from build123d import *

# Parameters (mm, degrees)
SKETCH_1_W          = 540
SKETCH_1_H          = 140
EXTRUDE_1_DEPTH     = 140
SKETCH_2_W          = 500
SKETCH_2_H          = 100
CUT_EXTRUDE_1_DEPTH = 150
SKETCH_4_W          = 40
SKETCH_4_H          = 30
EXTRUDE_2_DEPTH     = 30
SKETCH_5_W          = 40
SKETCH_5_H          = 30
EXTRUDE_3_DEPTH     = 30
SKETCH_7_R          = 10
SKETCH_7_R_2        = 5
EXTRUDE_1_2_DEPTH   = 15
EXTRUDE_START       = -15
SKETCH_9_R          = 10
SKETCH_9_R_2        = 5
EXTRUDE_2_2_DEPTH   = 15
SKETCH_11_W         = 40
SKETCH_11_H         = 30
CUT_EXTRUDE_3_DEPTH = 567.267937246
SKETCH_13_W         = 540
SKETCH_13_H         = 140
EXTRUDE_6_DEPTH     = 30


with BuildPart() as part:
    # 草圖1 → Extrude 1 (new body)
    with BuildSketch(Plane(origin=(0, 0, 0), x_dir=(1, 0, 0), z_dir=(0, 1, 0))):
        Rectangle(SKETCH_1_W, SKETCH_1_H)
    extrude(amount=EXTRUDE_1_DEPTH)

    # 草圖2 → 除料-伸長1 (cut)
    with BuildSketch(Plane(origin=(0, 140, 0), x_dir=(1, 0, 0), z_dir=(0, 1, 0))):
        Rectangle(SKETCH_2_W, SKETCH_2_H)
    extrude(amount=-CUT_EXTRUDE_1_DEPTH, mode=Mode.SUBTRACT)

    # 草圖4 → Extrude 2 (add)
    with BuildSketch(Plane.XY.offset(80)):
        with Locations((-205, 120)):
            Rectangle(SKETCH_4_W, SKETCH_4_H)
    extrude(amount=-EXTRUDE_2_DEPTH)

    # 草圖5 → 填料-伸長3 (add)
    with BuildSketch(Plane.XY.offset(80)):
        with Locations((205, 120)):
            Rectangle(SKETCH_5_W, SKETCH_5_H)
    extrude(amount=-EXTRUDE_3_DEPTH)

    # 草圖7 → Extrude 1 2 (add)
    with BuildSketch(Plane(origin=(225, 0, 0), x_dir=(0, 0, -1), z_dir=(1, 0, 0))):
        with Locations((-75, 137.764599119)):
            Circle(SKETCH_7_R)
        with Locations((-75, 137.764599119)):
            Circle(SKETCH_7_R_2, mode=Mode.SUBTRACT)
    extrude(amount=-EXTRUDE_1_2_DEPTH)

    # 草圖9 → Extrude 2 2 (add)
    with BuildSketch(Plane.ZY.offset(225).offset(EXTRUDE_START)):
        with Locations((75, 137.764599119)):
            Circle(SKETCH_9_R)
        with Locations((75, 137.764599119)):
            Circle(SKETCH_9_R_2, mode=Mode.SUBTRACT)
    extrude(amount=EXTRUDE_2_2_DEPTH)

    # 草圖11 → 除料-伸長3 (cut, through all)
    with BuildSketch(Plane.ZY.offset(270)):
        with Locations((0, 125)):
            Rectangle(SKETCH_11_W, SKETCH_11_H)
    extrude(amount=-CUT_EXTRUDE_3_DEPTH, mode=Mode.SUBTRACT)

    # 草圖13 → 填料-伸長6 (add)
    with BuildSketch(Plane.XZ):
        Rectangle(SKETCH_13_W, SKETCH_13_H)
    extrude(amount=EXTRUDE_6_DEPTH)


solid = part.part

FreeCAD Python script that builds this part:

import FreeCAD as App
import Part
import Sketcher

V = App.Vector
Q = App.Units.Quantity

doc = App.newDocument("Part")
body = doc.addObject("PartDesign::Body", "Body")

# Sketch on XZ plane
sketch1 = body.newObject("Sketcher::SketchObject", "Sketch")
sketch1.AttachmentSupport = (doc.getObject("XZ_Plane"), [""])
sketch1.MapMode = "FlatFace"
sketch1.addGeometry([
    Part.LineSegment(V(-270, -70, 0), V(-270, 70, 0)),
    Part.LineSegment(V(-270, 70, 0), V(270, 70, 0)),
    Part.LineSegment(V(270, 70, 0), V(270, -70, 0)),
    Part.LineSegment(V(270, -70, 0), V(-270, -70, 0)),
], False)
sketch1.addConstraint([
    Sketcher.Constraint("Coincident", 0, 2, 1, 1),
    Sketcher.Constraint("Coincident", 1, 2, 2, 1),
    Sketcher.Constraint("Coincident", 2, 2, 3, 1),
    Sketcher.Constraint("Coincident", 3, 2, 0, 1),
    Sketcher.Constraint("Vertical", 0),
    Sketcher.Constraint("Horizontal", 1),
    Sketcher.Constraint("Vertical", 2),
    Sketcher.Constraint("Horizontal", 3),
    Sketcher.Constraint("Symmetric", 0, 2, 2, 2, -1, 1),
    Sketcher.Constraint("DistanceX", 1, 1, 1, 2, Q("540 mm")),
    Sketcher.Constraint("DistanceY", 0, 1, 0, 2, Q("140 mm")),
])
pad1 = body.newObject("PartDesign::Pad", "Pad")
pad1.Profile = sketch1
pad1.Length = 140
pad1.Reversed = True

# Sketch on XZ plane
sketch2 = body.newObject("Sketcher::SketchObject", "Sketch001")
sketch2.AttachmentSupport = (doc.getObject("XZ_Plane"), [""])
sketch2.MapMode = "FlatFace"
sketch2.AttachmentOffset = App.Placement(V(0, 0, -140), App.Rotation())
sketch2.addGeometry([
    Part.LineSegment(V(-250, -50, 0), V(-250, 50, 0)),
    Part.LineSegment(V(-250, 50, 0), V(250, 50, 0)),
    Part.LineSegment(V(250, 50, 0), V(250, -50, 0)),
    Part.LineSegment(V(250, -50, 0), V(-250, -50, 0)),
], False)
sketch2.addConstraint([
    Sketcher.Constraint("Coincident", 0, 2, 1, 1),
    Sketcher.Constraint("Coincident", 1, 2, 2, 1),
    Sketcher.Constraint("Coincident", 2, 2, 3, 1),
    Sketcher.Constraint("Coincident", 3, 2, 0, 1),
    Sketcher.Constraint("Vertical", 0),
    Sketcher.Constraint("Horizontal", 1),
    Sketcher.Constraint("Vertical", 2),
    Sketcher.Constraint("Horizontal", 3),
    Sketcher.Constraint("Symmetric", 0, 2, 2, 2, -1, 1),
    Sketcher.Constraint("DistanceX", 1, 1, 1, 2, Q("500 mm")),
    Sketcher.Constraint("DistanceY", 0, 1, 0, 2, Q("100 mm")),
])
pocket1 = body.newObject("PartDesign::Pocket", "Pocket")
pocket1.Profile = sketch2
pocket1.Length = 150
pocket1.Reversed = True

# Sketch on XY plane
sketch3 = body.newObject("Sketcher::SketchObject", "Sketch002")
sketch3.AttachmentSupport = (doc.getObject("XY_Plane"), [""])
sketch3.MapMode = "FlatFace"
sketch3.AttachmentOffset = App.Placement(V(0, 0, 80), App.Rotation())
sketch3.addGeometry([
    Part.LineSegment(V(-225, 135, 0), V(-225, 105, 0)),
    Part.LineSegment(V(-225, 105, 0), V(-185, 105, 0)),
    Part.LineSegment(V(-185, 105, 0), V(-185, 135, 0)),
    Part.LineSegment(V(-185, 135, 0), V(-225, 135, 0)),
], False)
sketch3.addConstraint([
    Sketcher.Constraint("Coincident", 0, 2, 1, 1),
    Sketcher.Constraint("Coincident", 1, 2, 2, 1),
    Sketcher.Constraint("Coincident", 2, 2, 3, 1),
    Sketcher.Constraint("Coincident", 3, 2, 0, 1),
    Sketcher.Constraint("Vertical", 0),
    Sketcher.Constraint("Horizontal", 1),
    Sketcher.Constraint("Vertical", 2),
    Sketcher.Constraint("Horizontal", 3),
    Sketcher.Constraint("DistanceX", 1, 1, 1, 2, Q("40 mm")),
    Sketcher.Constraint("DistanceY", 0, 2, 0, 1, Q("30 mm")),
    Sketcher.Constraint("DistanceX", 0, 2, -1, 1, Q("225 mm")),
    Sketcher.Constraint("DistanceY", -1, 1, 0, 2, Q("105 mm")),
])
pad2 = body.newObject("PartDesign::Pad", "Pad001")
pad2.Profile = sketch3
pad2.Length = 30
pad2.Reversed = True

# Sketch on XY plane
sketch4 = body.newObject("Sketcher::SketchObject", "Sketch003")
sketch4.AttachmentSupport = (doc.getObject("XY_Plane"), [""])
sketch4.MapMode = "FlatFace"
sketch4.AttachmentOffset = App.Placement(V(0, 0, 80), App.Rotation())
sketch4.addGeometry([
    Part.LineSegment(V(185, 135, 0), V(185, 105, 0)),
    Part.LineSegment(V(185, 105, 0), V(225, 105, 0)),
    Part.LineSegment(V(225, 105, 0), V(225, 135, 0)),
    Part.LineSegment(V(225, 135, 0), V(185, 135, 0)),
], False)
sketch4.addConstraint([
    Sketcher.Constraint("Coincident", 0, 2, 1, 1),
    Sketcher.Constraint("Coincident", 1, 2, 2, 1),
    Sketcher.Constraint("Coincident", 2, 2, 3, 1),
    Sketcher.Constraint("Coincident", 3, 2, 0, 1),
    Sketcher.Constraint("Vertical", 0),
    Sketcher.Constraint("Horizontal", 1),
    Sketcher.Constraint("Vertical", 2),
    Sketcher.Constraint("Horizontal", 3),
    Sketcher.Constraint("DistanceX", 1, 1, 1, 2, Q("40 mm")),
    Sketcher.Constraint("DistanceY", 0, 2, 0, 1, Q("30 mm")),
    Sketcher.Constraint("DistanceX", -1, 1, 0, 2, Q("185 mm")),
    Sketcher.Constraint("DistanceY", -1, 1, 0, 2, Q("105 mm")),
])
pad3 = body.newObject("PartDesign::Pad", "Pad002")
pad3.Profile = sketch4
pad3.Length = 30
pad3.Reversed = True

# Sketch on YZ plane
sketch5 = body.newObject("Sketcher::SketchObject", "Sketch004")
sketch5.AttachmentSupport = (doc.getObject("YZ_Plane"), [""])
sketch5.MapMode = "FlatFace"
sketch5.AttachmentOffset = App.Placement(V(0, 0, 225), App.Rotation())
sketch5.addGeometry([
    Part.Circle(V(137.764599, 75, 0), V(0, 0, 1), 10),
    Part.Circle(V(137.764599, 75, 0), V(0, 0, 1), 5),
], False)
sketch5.addConstraint([
    Sketcher.Constraint("Coincident", 1, 3, 0, 3),
    Sketcher.Constraint("Diameter", 0, Q("20 mm")),
    Sketcher.Constraint("Diameter", 1, Q("10 mm")),
    Sketcher.Constraint("DistanceY", -1, 1, 0, 3, Q("75 mm")),
    Sketcher.Constraint("DistanceX", -1, 1, 0, 3, Q("137.764599 mm")),
])
pad4 = body.newObject("PartDesign::Pad", "Pad003")
pad4.Profile = sketch5
pad4.Length = 15
pad4.Reversed = True

# Sketch on YZ plane
sketch6 = body.newObject("Sketcher::SketchObject", "Sketch005")
sketch6.AttachmentSupport = (doc.getObject("YZ_Plane"), [""])
sketch6.MapMode = "FlatFace"
sketch6.AttachmentOffset = App.Placement(V(0, 0, -210), App.Rotation())
sketch6.addGeometry([
    Part.Circle(V(137.764599, 75, 0), V(0, 0, 1), 10),
    Part.Circle(V(137.764599, 75, 0), V(0, 0, 1), 5),
], False)
sketch6.addConstraint([
    Sketcher.Constraint("Coincident", 1, 3, 0, 3),
    Sketcher.Constraint("Diameter", 0, Q("20 mm")),
    Sketcher.Constraint("Diameter", 1, Q("10 mm")),
    Sketcher.Constraint("DistanceY", -1, 1, 0, 3, Q("75 mm")),
    Sketcher.Constraint("DistanceX", -1, 1, 0, 3, Q("137.764599 mm")),
])
pad5 = body.newObject("PartDesign::Pad", "Pad004")
pad5.Profile = sketch6
pad5.Length = 15
pad5.Reversed = True

# Sketch on YZ plane
sketch7 = body.newObject("Sketcher::SketchObject", "Sketch006")
sketch7.AttachmentSupport = (doc.getObject("YZ_Plane"), [""])
sketch7.MapMode = "FlatFace"
sketch7.AttachmentOffset = App.Placement(V(0, 0, -270), App.Rotation())
sketch7.addGeometry([
    Part.LineSegment(V(140, -20, 0), V(110, -20, 0)),
    Part.LineSegment(V(110, -20, 0), V(110, 20, 0)),
    Part.LineSegment(V(110, 20, 0), V(140, 20, 0)),
    Part.LineSegment(V(140, 20, 0), V(140, -20, 0)),
], False)
sketch7.addConstraint([
    Sketcher.Constraint("Coincident", 0, 2, 1, 1),
    Sketcher.Constraint("Coincident", 1, 2, 2, 1),
    Sketcher.Constraint("Coincident", 2, 2, 3, 1),
    Sketcher.Constraint("Coincident", 3, 2, 0, 1),
    Sketcher.Constraint("Horizontal", 0),
    Sketcher.Constraint("Vertical", 1),
    Sketcher.Constraint("Horizontal", 2),
    Sketcher.Constraint("Vertical", 3),
    Sketcher.Constraint("DistanceX", 0, 2, 0, 1, Q("30 mm")),
    Sketcher.Constraint("DistanceY", 1, 1, 1, 2, Q("40 mm")),
    Sketcher.Constraint("DistanceX", -1, 1, 0, 2, Q("110 mm")),
    Sketcher.Constraint("DistanceY", 0, 2, -1, 1, Q("20 mm")),
])
pocket2 = body.newObject("PartDesign::Pocket", "Pocket001")
pocket2.Profile = sketch7
pocket2.Type = "ThroughAll"
pocket2.Reversed = True

# Sketch on XZ plane
sketch8 = body.newObject("Sketcher::SketchObject", "Sketch007")
sketch8.AttachmentSupport = (doc.getObject("XZ_Plane"), [""])
sketch8.MapMode = "FlatFace"
sketch8.addGeometry([
    Part.LineSegment(V(-270, 70, 0), V(-270, -70, 0)),
    Part.LineSegment(V(-270, -70, 0), V(270, -70, 0)),
    Part.LineSegment(V(270, -70, 0), V(270, 70, 0)),
    Part.LineSegment(V(270, 70, 0), V(-270, 70, 0)),
], False)
sketch8.addConstraint([
    Sketcher.Constraint("Coincident", 0, 2, 1, 1),
    Sketcher.Constraint("Coincident", 1, 2, 2, 1),
    Sketcher.Constraint("Coincident", 2, 2, 3, 1),
    Sketcher.Constraint("Coincident", 3, 2, 0, 1),
    Sketcher.Constraint("Vertical", 0),
    Sketcher.Constraint("Horizontal", 1),
    Sketcher.Constraint("Vertical", 2),
    Sketcher.Constraint("Horizontal", 3),
    Sketcher.Constraint("Symmetric", 0, 2, 2, 2, -1, 1),
    Sketcher.Constraint("DistanceX", 1, 1, 1, 2, Q("540 mm")),
    Sketcher.Constraint("DistanceY", 0, 2, 0, 1, Q("140 mm")),
])
pad6 = body.newObject("PartDesign::Pad", "Pad005")
pad6.Profile = sketch8
pad6.Length = 30

doc.recompute()
